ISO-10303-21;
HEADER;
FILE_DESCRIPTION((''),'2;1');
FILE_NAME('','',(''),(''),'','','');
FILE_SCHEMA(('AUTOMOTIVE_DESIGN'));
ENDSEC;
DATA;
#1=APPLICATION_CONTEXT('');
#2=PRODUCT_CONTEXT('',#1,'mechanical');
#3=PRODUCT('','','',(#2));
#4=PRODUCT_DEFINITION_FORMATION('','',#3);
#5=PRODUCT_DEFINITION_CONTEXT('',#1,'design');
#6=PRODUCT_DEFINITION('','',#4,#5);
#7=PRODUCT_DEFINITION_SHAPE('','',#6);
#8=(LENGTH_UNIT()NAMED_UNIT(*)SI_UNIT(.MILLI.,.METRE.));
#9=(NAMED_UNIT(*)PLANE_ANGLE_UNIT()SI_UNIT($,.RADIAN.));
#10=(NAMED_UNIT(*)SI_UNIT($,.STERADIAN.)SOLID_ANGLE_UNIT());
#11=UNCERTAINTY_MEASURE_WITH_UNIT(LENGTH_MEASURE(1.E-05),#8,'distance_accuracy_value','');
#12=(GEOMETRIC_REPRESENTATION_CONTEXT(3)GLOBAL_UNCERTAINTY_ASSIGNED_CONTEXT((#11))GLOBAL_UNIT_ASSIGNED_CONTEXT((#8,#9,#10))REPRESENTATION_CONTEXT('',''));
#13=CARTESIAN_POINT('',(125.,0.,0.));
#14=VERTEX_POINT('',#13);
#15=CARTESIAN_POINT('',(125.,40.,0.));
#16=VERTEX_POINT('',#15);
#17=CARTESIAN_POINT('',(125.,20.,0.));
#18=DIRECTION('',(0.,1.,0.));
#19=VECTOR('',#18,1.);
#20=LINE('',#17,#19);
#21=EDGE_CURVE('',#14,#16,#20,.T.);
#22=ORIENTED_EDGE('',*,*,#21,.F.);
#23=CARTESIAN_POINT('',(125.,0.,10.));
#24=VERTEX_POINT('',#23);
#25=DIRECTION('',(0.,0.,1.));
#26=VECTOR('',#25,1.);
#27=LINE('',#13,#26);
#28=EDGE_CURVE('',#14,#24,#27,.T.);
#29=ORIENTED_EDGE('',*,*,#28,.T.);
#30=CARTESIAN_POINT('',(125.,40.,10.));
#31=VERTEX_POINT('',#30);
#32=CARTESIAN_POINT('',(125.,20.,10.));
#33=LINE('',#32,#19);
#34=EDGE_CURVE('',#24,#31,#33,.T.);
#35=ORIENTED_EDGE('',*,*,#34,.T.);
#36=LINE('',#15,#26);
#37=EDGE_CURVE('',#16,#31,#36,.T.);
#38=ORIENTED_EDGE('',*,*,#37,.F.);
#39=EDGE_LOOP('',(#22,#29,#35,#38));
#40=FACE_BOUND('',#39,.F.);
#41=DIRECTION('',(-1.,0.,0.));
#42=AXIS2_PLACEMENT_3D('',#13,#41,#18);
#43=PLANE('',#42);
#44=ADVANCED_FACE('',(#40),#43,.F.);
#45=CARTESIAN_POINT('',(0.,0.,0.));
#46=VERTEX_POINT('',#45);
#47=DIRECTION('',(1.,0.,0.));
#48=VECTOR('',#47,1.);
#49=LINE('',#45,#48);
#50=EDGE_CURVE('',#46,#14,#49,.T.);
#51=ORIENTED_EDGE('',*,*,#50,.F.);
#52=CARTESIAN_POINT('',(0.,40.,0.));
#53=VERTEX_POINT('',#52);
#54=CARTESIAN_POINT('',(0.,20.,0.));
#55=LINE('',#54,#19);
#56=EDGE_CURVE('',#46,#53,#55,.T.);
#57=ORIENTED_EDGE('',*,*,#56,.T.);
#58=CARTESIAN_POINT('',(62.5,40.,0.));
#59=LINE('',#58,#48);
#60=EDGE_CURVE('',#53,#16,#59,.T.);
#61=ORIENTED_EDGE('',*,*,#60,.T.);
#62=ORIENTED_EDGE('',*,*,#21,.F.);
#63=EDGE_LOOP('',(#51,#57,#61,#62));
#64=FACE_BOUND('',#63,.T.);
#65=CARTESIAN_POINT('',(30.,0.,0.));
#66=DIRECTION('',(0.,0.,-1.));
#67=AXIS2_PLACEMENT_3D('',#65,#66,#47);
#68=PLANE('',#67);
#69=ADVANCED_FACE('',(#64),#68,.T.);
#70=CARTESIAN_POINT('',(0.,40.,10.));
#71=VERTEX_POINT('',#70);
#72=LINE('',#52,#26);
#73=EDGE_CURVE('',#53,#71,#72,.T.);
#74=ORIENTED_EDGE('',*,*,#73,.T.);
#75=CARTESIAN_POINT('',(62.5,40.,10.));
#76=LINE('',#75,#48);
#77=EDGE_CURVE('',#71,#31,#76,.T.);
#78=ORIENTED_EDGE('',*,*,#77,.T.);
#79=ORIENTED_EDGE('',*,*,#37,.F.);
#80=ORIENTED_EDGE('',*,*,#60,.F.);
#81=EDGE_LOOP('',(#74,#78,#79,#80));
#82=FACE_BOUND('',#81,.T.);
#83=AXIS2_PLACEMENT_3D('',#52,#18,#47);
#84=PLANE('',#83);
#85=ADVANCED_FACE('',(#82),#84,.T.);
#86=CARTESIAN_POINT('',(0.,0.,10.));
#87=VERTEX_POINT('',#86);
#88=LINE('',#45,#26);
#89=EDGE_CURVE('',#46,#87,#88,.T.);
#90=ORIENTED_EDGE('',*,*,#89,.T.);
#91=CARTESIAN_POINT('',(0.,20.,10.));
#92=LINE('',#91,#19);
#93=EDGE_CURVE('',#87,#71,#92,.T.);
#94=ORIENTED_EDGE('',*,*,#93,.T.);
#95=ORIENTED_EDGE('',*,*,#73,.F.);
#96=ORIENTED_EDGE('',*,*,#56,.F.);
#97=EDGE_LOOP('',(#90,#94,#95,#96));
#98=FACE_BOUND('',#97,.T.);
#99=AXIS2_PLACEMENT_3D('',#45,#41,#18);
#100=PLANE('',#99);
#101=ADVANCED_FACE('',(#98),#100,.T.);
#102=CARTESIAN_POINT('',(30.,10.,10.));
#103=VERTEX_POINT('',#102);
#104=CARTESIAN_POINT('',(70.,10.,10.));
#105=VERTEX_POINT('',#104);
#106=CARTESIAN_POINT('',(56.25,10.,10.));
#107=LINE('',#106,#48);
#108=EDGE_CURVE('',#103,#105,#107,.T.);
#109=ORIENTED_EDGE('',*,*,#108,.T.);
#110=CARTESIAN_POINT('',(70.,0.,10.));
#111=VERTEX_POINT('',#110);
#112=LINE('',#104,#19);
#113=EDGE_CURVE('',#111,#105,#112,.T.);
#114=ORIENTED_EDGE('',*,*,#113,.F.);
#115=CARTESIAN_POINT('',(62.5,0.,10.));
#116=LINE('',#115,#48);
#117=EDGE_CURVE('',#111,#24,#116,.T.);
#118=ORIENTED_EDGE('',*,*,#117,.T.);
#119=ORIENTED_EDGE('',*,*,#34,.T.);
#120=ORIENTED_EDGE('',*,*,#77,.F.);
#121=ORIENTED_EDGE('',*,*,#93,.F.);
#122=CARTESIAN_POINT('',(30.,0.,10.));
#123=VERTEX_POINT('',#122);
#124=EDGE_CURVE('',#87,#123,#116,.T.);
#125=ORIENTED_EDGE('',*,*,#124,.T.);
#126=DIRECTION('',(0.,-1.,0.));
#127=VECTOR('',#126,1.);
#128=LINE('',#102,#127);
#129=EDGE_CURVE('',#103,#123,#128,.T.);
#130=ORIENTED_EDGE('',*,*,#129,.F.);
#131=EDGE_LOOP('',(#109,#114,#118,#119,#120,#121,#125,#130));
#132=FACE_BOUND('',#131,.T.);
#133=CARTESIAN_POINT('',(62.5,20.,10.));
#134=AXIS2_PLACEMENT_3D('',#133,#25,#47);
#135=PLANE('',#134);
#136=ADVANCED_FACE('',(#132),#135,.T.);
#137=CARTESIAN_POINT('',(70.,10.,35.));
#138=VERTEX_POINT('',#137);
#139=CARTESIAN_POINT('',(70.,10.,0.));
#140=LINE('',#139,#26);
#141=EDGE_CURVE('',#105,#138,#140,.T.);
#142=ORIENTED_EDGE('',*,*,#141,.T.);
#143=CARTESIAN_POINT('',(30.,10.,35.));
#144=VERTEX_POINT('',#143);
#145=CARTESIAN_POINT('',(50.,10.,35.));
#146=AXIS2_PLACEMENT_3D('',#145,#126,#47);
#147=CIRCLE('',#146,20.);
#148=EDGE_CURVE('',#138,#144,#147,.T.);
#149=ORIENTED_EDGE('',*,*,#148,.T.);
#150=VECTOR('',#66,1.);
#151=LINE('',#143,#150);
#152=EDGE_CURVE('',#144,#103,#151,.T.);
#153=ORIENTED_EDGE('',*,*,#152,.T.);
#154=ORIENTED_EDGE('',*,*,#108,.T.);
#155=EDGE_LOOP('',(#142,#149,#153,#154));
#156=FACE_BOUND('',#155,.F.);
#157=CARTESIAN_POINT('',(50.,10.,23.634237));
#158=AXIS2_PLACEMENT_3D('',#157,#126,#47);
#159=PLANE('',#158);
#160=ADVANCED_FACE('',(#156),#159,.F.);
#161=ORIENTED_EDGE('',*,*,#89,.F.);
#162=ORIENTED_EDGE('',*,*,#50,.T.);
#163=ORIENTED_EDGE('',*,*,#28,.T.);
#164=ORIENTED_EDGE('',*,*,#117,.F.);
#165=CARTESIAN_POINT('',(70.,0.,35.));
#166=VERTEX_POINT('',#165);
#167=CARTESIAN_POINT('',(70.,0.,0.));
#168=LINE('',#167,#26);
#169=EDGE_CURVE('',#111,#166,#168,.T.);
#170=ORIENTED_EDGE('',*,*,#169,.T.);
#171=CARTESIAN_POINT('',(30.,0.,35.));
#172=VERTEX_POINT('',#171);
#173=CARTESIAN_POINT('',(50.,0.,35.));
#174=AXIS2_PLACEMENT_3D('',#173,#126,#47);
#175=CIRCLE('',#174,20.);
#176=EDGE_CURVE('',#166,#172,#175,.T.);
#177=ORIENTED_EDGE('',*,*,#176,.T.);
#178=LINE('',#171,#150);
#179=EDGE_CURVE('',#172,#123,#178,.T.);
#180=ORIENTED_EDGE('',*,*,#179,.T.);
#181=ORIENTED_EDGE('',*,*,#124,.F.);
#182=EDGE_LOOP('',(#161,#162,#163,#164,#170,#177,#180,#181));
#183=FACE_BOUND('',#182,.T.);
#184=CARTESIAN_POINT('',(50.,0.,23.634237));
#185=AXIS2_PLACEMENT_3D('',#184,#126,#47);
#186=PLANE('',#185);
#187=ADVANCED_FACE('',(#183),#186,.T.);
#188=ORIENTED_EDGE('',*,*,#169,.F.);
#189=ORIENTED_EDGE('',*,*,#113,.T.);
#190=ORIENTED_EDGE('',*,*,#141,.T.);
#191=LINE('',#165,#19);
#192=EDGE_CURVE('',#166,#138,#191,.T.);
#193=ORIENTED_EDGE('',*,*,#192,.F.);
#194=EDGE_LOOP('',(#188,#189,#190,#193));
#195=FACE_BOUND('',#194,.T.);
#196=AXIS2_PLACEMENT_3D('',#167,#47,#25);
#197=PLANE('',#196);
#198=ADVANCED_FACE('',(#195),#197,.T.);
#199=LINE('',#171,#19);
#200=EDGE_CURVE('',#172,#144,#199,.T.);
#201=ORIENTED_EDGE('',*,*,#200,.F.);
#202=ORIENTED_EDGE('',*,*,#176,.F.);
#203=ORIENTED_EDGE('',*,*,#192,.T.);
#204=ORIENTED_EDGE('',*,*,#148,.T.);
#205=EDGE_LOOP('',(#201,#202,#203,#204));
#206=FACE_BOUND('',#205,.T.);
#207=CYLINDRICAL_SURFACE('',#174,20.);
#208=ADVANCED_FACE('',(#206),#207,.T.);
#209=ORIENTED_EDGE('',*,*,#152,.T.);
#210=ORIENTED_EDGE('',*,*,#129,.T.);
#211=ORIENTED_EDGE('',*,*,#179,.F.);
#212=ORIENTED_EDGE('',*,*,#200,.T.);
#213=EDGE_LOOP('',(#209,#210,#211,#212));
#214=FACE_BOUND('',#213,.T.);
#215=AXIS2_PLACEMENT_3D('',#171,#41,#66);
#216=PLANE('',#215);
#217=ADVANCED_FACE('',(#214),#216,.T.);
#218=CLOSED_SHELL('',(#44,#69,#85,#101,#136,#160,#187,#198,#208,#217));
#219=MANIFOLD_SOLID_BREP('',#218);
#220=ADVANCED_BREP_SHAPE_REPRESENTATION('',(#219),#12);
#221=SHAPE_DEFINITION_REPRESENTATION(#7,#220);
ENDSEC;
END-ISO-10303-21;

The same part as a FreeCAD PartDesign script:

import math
import FreeCAD as App
import Part
import Sketcher

V = App.Vector

doc = App.newDocument("Part")
body = doc.addObject("PartDesign::Body", "Body")

# Sketch on XY plane
sketch1 = doc.addObject("Sketcher::SketchObject", "Sketch")
body.addObject(sketch1)
sketch1.AttachmentSupport = (doc.XY_Plane, [""])
sketch1.MapMode = "FlatFace"
sketch1.addGeometry([
    Part.LineSegment(V(0, 40, 0), V(0, 0, 0)),
    Part.LineSegment(V(0, 0, 0), V(125, 0, 0)),
    Part.LineSegment(V(125, 0, 0), V(125, 40, 0)),
    Part.LineSegment(V(125, 40, 0), V(0, 40, 0)),
], False)
sketch1.addConstraint([
    Sketcher.Constraint("Coincident", 0, 2, 1, 1),
    Sketcher.Constraint("Coincident", 1, 2, 2, 1),
    Sketcher.Constraint("Coincident", 2, 2, 3, 1),
    Sketcher.Constraint("Coincident", 3, 2, 0, 1),
    Sketcher.Constraint("Vertical", 0),
    Sketcher.Constraint("Horizontal", 1),
    Sketcher.Constraint("Vertical", 2),
    Sketcher.Constraint("Horizontal", 3),
    Sketcher.Constraint("Coincident", 0, 2, -1, 1),
    Sketcher.Constraint("DistanceX", 1, 1, 1, 2, 125.0),
    Sketcher.Constraint("DistanceY", 0, 2, 0, 1, 40.0),
])
pad1 = doc.addObject("PartDesign::Pad", "Pad")
body.addObject(pad1)
pad1.Profile = sketch1
pad1.Length = 10

# Sketch on XZ plane
sketch2 = doc.addObject("Sketcher::SketchObject", "Sketch001")
body.addObject(sketch2)
sketch2.AttachmentSupport = (doc.XZ_Plane, [""])
sketch2.MapMode = "FlatFace"
sketch2.addGeometry([
    Part.LineSegment(V(30, 35, 0), V(30, 0, 0)),
    Part.LineSegment(V(30, 0, 0), V(70, 0, 0)),
    Part.LineSegment(V(70, 0, 0), V(70, 35, 0)),
    Part.ArcOfCircle(Part.Circle(V(50, 35, 0), V(0, 0, 1), 20), math.radians(0), math.radians(180)),
], False)
sketch2.addConstraint([
    Sketcher.Constraint("Coincident", 0, 2, 1, 1),
    Sketcher.Constraint("Coincident", 1, 2, 2, 1),
    Sketcher.Constraint("Tangent", 2, 2, 3, 1),
    Sketcher.Constraint("Tangent", 3, 2, 0, 1),
    Sketcher.Constraint("Vertical", 0),
    Sketcher.Constraint("Horizontal", 1),
    Sketcher.Constraint("Vertical", 2),
    Sketcher.Constraint("PointOnObject", 0, 2, -1),
    Sketcher.Constraint("Radius", 3, 20.0),
    Sketcher.Constraint("DistanceY", 0, 2, 0, 1, 35.0),
    Sketcher.Constraint("DistanceX", -1, 1, 3, 3, 50.0),
])
pad2 = doc.addObject("PartDesign::Pad", "Pad001")
body.addObject(pad2)
pad2.Profile = sketch2
pad2.Length = 10
pad2.Reversed = True

doc.recompute()
